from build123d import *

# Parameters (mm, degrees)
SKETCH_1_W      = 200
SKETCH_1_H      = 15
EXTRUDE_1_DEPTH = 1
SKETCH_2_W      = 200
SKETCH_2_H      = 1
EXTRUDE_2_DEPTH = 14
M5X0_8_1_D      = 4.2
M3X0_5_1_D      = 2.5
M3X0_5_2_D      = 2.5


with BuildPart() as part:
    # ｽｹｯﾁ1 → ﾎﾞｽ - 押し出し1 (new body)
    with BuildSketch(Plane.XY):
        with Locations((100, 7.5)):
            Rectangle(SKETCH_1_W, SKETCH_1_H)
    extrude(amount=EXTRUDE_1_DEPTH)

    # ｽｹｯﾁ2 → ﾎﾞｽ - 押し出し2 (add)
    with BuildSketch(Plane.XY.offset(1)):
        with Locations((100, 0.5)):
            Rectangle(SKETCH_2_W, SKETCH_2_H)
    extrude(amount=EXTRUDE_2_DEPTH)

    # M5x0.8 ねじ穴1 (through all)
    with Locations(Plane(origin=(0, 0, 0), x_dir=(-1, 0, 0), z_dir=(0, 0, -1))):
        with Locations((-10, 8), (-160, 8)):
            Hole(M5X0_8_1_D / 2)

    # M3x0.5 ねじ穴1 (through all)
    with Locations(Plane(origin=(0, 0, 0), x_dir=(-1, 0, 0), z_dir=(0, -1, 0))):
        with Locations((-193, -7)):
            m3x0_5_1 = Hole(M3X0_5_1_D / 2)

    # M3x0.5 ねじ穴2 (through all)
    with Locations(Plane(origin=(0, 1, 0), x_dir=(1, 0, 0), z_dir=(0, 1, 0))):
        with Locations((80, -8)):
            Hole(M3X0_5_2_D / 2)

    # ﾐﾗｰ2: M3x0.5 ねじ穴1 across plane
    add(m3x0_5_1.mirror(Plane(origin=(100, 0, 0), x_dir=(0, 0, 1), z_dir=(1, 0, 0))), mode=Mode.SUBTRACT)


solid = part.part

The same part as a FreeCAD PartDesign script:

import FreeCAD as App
import Part
import Sketcher
from FreeCAD import Vector

doc = App.newDocument("Part")
body = doc.addObject("PartDesign::Body", "Body")

# Sketch on XY plane
sketch1 = body.newObject("Sketcher::SketchObject", "Sketch")
sketch1.AttachmentSupport = (doc.getObject("XY_Plane"), [""])
sketch1.MapMode = "FlatFace"
sketch1.addGeometry([
    Part.LineSegment(Vector(0, 15, 0), Vector(0, 0, 0)),
    Part.LineSegment(Vector(0, 0, 0), Vector(200, 0, 0)),
    Part.LineSegment(Vector(200, 0, 0), Vector(200, 15, 0)),
    Part.LineSegment(Vector(200, 15, 0), Vector(0, 15, 0)),
], False)
sketch1.addConstraint([
    Sketcher.Constraint("Coincident", 0, 2, 1, 1),
    Sketcher.Constraint("Coincident", 1, 2, 2, 1),
    Sketcher.Constraint("Coincident", 2, 2, 3, 1),
    Sketcher.Constraint("Coincident", 3, 2, 0, 1),
    Sketcher.Constraint("Vertical", 0),
    Sketcher.Constraint("Horizontal", 1),
    Sketcher.Constraint("Vertical", 2),
    Sketcher.Constraint("Horizontal", 3),
    Sketcher.Constraint("Coincident", 0, 2, -1, 1),
    Sketcher.Constraint("DistanceX", 1, 1, 1, 2, 200.0),
    Sketcher.Constraint("DistanceY", 0, 2, 0, 1, 15.0),
])
pad1 = body.newObject("PartDesign::Pad", "Pad")
pad1.Profile = sketch1
pad1.Length = 1

# Sketch on XY plane
sketch2 = body.newObject("Sketcher::SketchObject", "Sketch001")
sketch2.AttachmentSupport = (doc.getObject("XY_Plane"), [""])
sketch2.MapMode = "FlatFace"
sketch2.AttachmentOffset = App.Placement(Vector(0, 0, 1), App.Rotation())
sketch2.addGeometry([
    Part.LineSegment(Vector(0, 1, 0), Vector(0, 0, 0)),
    Part.LineSegment(Vector(0, 0, 0), Vector(200, 0, 0)),
    Part.LineSegment(Vector(200, 0, 0), Vector(200, 1, 0)),
    Part.LineSegment(Vector(200, 1, 0), Vector(0, 1, 0)),
], False)
sketch2.addConstraint([
    Sketcher.Constraint("Coincident", 0, 2, 1, 1),
    Sketcher.Constraint("Coincident", 1, 2, 2, 1),
    Sketcher.Constraint("Coincident", 2, 2, 3, 1),
    Sketcher.Constraint("Coincident", 3, 2, 0, 1),
    Sketcher.Constraint("Vertical", 0),
    Sketcher.Constraint("Horizontal", 1),
    Sketcher.Constraint("Vertical", 2),
    Sketcher.Constraint("Horizontal", 3),
    Sketcher.Constraint("Coincident", 0, 2, -1, 1),
    Sketcher.Constraint("DistanceX", 1, 1, 1, 2, 200.0),
    Sketcher.Constraint("DistanceY", 0, 2, 0, 1, 1.0),
])
pad2 = body.newObject("PartDesign::Pad", "Pad001")
pad2.Profile = sketch2
pad2.Length = 14

# Sketch on XY plane
sketch3 = body.newObject("Sketcher::SketchObject", "Sketch002")
sketch3.AttachmentSupport = (doc.getObject("XY_Plane"), [""])
sketch3.MapMode = "FlatFace"
sketch3.addGeometry([
    Part.Circle(Vector(10, 8, 0), Vector(0, 0, 1), 2.1),
    Part.Circle(Vector(160, 8, 0), Vector(0, 0, 1), 2.1),
], False)
sketch3.addConstraint([
    Sketcher.Constraint("Equal", 0, 1),
    Sketcher.Constraint("Horizontal", 0, 3, 1, 3),
    Sketcher.Constraint("Diameter", 0, 4.2),
    Sketcher.Constraint("DistanceX", -1, 1, 0, 3, 10.0),
    Sketcher.Constraint("DistanceY", -1, 1, 0, 3, 8.0),
    Sketcher.Constraint("DistanceX", -1, 1, 1, 3, 160.0),
])
doc.recompute()
hole = body.newObject("PartDesign::Hole", "Hole")
hole.Profile = sketch3
hole.ThreadType = "None"
hole.Diameter = 4.2
hole.DepthType = "ThroughAll"
hole.Reversed = True

# Sketch on XZ plane
sketch4 = body.newObject("Sketcher::SketchObject", "Sketch003")
sketch4.AttachmentSupport = (doc.getObject("XZ_Plane"), [""])
sketch4.MapMode = "FlatFace"
sketch4.addGeometry(Part.Circle(Vector(193, 7, 0), Vector(0, 0, 1), 1.2), False)
sketch4.addConstraint([
    Sketcher.Constraint("Diameter", 0, 2.5),
    Sketcher.Constraint("DistanceX", -1, 1, 0, 3, 193.0),
    Sketcher.Constraint("DistanceY", -1, 1, 0, 3, 7.0),
])
doc.recompute()
hole2 = body.newObject("PartDesign::Hole", "Hole001")
hole2.Profile = sketch4
hole2.ThreadType = "None"
hole2.Diameter = 2.5
hole2.DepthType = "ThroughAll"

# Sketch on XZ plane
sketch5 = body.newObject("Sketcher::SketchObject", "Sketch004")
sketch5.AttachmentSupport = (doc.getObject("XZ_Plane"), [""])
sketch5.MapMode = "FlatFace"
sketch5.AttachmentOffset = App.Placement(Vector(0, 0, -1), App.Rotation())
sketch5.addGeometry(Part.Circle(Vector(80, 8, 0), Vector(0, 0, 1), 1.2), False)
sketch5.addConstraint([
    Sketcher.Constraint("Diameter", 0, 2.5),
    Sketcher.Constraint("DistanceX", -1, 1, 0, 3, 80.0),
    Sketcher.Constraint("DistanceY", -1, 1, 0, 3, 8.0),
])
doc.recompute()
hole3 = body.newObject("PartDesign::Hole", "Hole002")
hole3.Profile = sketch5
hole3.ThreadType = "None"
hole3.Diameter = 2.5
hole3.DepthType = "ThroughAll"
hole3.Reversed = True
doc.recompute()

datumplane = body.newObject("PartDesign::Plane", "DatumPlane")
datumplane.AttachmentSupport = (doc.getObject("YZ_Plane"), [""])
datumplane.MapMode = "FlatFace"
datumplane.AttachmentOffset = App.Placement(Vector(0, 0, 100), App.Rotation())
mirrored = body.newObject("PartDesign::Mirrored", "Mirrored")
mirrored.Originals = [hole2]
mirrored.MirrorPlane = (datumplane, [""])
body.Tip = mirrored

doc.recompute()
